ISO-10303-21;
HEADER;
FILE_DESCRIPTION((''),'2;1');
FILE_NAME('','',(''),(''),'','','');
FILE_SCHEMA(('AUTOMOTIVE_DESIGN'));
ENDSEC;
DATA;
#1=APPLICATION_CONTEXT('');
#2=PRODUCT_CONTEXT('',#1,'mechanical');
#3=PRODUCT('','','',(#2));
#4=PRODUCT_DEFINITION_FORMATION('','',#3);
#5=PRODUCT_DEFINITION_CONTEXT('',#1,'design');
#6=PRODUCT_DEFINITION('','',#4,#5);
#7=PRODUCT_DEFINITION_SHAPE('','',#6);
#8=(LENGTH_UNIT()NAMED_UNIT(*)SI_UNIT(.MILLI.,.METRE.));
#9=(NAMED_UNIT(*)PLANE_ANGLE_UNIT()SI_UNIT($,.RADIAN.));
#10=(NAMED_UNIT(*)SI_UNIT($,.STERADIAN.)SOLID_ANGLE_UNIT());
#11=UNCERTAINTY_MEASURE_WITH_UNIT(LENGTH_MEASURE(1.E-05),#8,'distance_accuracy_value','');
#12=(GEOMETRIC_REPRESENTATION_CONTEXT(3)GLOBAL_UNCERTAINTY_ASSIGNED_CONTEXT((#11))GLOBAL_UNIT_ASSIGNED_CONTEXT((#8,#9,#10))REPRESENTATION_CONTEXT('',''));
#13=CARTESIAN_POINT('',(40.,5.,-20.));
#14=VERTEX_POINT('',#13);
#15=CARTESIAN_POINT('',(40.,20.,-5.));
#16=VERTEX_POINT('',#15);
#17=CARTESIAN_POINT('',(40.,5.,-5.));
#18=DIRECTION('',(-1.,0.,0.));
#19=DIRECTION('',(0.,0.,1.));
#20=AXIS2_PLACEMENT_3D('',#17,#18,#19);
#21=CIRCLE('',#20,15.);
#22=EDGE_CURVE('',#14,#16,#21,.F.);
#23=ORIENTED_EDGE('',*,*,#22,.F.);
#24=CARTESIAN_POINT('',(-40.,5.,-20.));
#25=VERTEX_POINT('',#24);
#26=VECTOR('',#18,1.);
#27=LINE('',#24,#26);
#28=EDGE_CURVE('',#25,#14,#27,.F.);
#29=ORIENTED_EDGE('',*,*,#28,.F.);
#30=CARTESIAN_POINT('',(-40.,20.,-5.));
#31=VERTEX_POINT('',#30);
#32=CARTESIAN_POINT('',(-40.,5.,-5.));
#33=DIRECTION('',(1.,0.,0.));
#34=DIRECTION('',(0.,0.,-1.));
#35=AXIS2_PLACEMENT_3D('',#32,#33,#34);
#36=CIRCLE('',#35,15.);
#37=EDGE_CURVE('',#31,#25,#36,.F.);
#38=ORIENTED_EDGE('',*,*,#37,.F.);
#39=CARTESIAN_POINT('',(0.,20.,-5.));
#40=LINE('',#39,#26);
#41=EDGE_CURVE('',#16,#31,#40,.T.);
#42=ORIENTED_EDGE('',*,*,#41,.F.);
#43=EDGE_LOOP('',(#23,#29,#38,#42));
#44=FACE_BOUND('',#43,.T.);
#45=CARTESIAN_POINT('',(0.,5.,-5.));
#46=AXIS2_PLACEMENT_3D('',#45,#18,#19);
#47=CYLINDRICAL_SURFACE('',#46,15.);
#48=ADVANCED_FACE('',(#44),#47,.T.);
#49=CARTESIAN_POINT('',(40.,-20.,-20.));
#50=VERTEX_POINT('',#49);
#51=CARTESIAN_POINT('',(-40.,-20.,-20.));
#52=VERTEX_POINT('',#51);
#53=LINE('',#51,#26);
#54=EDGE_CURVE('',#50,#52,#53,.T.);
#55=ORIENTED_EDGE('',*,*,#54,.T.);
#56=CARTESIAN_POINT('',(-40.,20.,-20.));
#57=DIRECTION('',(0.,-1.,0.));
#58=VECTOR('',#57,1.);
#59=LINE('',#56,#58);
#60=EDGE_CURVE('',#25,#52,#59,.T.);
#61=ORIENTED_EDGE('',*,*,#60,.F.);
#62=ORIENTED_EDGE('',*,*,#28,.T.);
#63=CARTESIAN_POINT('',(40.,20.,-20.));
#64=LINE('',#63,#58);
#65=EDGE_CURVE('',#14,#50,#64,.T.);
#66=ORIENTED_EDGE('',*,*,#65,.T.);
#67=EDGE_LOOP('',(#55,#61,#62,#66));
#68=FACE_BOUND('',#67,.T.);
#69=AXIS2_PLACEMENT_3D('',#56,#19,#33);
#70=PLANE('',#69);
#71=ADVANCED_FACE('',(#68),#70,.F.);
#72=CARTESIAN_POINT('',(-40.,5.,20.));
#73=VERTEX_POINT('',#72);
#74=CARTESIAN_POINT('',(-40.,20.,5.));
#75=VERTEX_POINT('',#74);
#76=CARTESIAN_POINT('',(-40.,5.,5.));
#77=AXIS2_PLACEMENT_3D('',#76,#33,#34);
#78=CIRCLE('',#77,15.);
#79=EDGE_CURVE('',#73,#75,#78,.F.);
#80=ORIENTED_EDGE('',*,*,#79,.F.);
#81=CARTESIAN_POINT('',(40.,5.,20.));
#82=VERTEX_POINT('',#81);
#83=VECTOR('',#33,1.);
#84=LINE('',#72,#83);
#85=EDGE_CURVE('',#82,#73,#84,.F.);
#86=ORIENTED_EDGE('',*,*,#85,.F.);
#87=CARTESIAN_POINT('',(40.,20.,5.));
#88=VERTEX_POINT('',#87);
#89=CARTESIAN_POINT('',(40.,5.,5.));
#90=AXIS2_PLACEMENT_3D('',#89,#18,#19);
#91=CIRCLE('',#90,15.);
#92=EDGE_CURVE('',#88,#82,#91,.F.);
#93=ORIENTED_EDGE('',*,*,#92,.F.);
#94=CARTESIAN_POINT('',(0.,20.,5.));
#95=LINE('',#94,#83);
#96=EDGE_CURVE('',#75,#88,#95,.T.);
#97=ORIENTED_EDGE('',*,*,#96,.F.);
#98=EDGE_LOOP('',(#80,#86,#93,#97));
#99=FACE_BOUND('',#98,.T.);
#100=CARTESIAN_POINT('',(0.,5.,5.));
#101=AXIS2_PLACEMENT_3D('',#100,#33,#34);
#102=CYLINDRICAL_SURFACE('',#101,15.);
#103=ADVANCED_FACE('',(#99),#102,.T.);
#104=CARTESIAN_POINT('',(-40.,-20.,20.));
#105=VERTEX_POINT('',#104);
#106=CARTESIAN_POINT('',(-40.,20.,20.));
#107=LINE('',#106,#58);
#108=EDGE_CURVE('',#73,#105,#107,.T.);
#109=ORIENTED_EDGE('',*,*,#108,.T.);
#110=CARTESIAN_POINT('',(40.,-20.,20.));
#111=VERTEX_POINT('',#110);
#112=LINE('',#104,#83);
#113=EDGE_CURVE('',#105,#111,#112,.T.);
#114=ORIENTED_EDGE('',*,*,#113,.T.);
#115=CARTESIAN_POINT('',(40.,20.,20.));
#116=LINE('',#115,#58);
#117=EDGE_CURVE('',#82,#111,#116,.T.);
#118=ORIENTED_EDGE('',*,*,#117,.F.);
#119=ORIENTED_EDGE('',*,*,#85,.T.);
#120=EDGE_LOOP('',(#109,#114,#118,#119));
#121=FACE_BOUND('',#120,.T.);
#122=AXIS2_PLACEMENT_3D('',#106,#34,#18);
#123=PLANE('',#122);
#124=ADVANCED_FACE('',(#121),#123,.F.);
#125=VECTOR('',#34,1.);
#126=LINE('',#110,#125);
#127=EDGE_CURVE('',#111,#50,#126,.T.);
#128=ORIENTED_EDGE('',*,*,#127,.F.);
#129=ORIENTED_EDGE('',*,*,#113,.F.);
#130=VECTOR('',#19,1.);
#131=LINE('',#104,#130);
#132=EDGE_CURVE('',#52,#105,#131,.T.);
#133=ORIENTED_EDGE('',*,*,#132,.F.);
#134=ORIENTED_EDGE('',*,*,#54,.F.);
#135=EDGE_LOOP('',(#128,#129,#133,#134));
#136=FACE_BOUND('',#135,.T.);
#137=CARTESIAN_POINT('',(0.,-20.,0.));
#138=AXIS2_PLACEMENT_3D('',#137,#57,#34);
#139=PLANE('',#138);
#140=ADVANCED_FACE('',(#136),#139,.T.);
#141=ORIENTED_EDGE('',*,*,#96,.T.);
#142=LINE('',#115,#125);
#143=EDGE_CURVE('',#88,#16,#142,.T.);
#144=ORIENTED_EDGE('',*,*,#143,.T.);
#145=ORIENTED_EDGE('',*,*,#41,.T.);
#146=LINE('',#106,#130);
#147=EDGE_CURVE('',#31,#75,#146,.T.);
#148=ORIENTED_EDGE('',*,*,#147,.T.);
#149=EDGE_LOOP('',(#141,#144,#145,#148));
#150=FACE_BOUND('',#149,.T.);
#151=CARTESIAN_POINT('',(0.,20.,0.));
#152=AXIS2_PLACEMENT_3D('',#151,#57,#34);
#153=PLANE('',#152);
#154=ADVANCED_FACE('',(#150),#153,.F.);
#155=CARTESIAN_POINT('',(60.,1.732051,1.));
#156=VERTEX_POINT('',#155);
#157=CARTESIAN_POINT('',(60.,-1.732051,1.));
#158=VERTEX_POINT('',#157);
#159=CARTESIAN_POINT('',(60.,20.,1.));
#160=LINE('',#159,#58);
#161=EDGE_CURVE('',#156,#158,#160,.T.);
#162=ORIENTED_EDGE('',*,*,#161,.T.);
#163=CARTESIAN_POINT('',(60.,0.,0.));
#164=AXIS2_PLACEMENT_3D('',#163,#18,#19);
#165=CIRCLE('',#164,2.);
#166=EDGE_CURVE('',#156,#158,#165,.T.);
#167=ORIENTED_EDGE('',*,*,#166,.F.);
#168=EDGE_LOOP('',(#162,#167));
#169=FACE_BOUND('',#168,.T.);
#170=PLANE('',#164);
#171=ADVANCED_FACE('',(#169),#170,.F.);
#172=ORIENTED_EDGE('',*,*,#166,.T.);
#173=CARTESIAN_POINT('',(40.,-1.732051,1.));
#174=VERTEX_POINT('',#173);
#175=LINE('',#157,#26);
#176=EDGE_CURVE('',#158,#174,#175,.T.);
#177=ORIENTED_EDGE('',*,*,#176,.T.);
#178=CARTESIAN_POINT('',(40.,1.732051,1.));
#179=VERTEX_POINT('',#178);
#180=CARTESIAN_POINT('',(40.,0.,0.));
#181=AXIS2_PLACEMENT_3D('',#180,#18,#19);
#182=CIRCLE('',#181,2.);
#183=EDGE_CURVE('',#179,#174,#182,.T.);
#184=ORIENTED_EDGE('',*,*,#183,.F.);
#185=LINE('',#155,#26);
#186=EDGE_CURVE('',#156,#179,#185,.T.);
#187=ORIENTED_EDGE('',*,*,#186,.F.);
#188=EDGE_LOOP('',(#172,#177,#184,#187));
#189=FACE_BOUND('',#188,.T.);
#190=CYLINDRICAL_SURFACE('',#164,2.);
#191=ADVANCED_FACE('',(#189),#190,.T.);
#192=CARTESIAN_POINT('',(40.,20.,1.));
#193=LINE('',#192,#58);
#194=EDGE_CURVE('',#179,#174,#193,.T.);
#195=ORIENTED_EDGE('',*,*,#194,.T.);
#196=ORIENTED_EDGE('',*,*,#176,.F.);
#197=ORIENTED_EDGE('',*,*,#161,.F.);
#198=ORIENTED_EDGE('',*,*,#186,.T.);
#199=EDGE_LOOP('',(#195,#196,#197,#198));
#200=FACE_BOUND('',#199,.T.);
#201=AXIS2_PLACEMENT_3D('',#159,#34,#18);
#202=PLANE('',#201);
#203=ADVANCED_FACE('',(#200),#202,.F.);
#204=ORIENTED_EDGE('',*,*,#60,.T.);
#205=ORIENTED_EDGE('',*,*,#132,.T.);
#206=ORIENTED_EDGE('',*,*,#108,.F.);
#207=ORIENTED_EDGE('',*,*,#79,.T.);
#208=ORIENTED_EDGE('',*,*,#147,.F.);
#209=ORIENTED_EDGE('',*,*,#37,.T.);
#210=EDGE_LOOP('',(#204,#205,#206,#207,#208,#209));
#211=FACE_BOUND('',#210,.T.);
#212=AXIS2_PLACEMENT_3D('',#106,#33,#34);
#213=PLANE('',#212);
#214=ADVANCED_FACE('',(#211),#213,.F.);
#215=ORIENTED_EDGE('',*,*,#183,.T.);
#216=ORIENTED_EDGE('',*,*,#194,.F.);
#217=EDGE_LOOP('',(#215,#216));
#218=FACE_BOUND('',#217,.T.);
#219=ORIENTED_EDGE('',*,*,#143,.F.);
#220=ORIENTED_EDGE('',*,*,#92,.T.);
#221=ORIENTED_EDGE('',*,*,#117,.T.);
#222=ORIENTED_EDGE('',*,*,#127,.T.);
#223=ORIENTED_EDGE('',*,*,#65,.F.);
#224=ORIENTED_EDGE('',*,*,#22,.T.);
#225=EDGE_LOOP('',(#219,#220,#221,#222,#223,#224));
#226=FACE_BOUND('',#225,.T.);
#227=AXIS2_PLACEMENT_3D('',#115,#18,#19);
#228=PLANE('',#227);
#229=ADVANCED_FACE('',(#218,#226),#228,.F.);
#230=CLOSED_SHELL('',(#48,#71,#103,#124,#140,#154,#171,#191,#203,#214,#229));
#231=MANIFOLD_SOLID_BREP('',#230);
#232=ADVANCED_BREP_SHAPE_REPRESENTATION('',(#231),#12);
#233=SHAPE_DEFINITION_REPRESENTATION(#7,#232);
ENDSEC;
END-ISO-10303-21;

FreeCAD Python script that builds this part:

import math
import FreeCAD as App
import Part
import Sketcher
Q = App.Units.Quantity


def edges_at(feature, points):
    """Names of the edges that pass closest to the given points."""
    edges = feature.Shape.Edges
    near = lambda p: min(range(len(edges)), key=lambda i: edges[i].distToShape(Part.Vertex(*p))[0])
    return sorted({f"Edge{near(p) + 1}" for p in points})

doc = App.newDocument("Part")
body = doc.addObject("PartDesign::Body", "Body")

# Sketch on XZ plane
sketch1 = body.newObject("Sketcher::SketchObject", "Sketch")
sketch1.AttachmentSupport = (doc.getObject("XZ_Plane"), [""])
sketch1.MapMode = "FlatFace"
sketch1.addGeometry(Part.LineSegment(App.Vector(-40, -20, 0), App.Vector(-40, 20, 0)), False)
sketch1.addGeometry(Part.LineSegment(App.Vector(-40, 20, 0), App.Vector(40, 20, 0)), False)
sketch1.addGeometry(Part.LineSegment(App.Vector(40, 20, 0), App.Vector(40, -20, 0)), False)
sketch1.addGeometry(Part.LineSegment(App.Vector(40, -20, 0), App.Vector(-40, -20, 0)), False)
sketch1.addConstraint(Sketcher.Constraint("Coincident", 0, 2, 1, 1))
sketch1.addConstraint(Sketcher.Constraint("Coincident", 1, 2, 2, 1))
sketch1.addConstraint(Sketcher.Constraint("Coincident", 2, 2, 3, 1))
sketch1.addConstraint(Sketcher.Constraint("Coincident", 3, 2, 0, 1))
sketch1.addConstraint(Sketcher.Constraint("Vertical", 0))
sketch1.addConstraint(Sketcher.Constraint("Horizontal", 1))
sketch1.addConstraint(Sketcher.Constraint("Vertical", 2))
sketch1.addConstraint(Sketcher.Constraint("Horizontal", 3))
sketch1.addConstraint(Sketcher.Constraint("Symmetric", 0, 2, 2, 2, -1, 1))
sketch1.addConstraint(Sketcher.Constraint("DistanceX", 1, 1, 1, 2, Q("80 mm")))
sketch1.addConstraint(Sketcher.Constraint("DistanceY", 0, 1, 0, 2, Q("40 mm")))
pad1 = body.newObject("PartDesign::Pad", "Pad")
pad1.Profile = sketch1
pad1.Length = 40
pad1.Midplane = True

# Sketch on YZ plane
sketch2 = body.newObject("Sketcher::SketchObject", "Sketch001")
sketch2.AttachmentSupport = (doc.getObject("YZ_Plane"), [""])
sketch2.MapMode = "FlatFace"
sketch2.AttachmentOffset = App.Placement(App.Vector(0, 0, 40), App.Rotation())
sketch2.addGeometry(Part.ArcOfCircle(Part.Circle(App.Vector(0, 0, 0), App.Vector(0, 0, 1), 2), math.radians(-90), math.radians(30)), False)
sketch2.addGeometry(Part.LineSegment(App.Vector(1.7, 1, 0), App.Vector(-1.7, 1, 0)), False)
sketch2.addGeometry(Part.ArcOfCircle(Part.Circle(App.Vector(0, 0, 0), App.Vector(0, 0, 1), 2), math.radians(150), math.radians(270)), False)
sketch2.addConstraint(Sketcher.Constraint("Coincident", 0, 2, 1, 1))
sketch2.addConstraint(Sketcher.Constraint("Coincident", 1, 2, 2, 1))
sketch2.addConstraint(Sketcher.Constraint("Tangent", 2, 2, 0, 1))
sketch2.addConstraint(Sketcher.Constraint("Horizontal", 1))
sketch2.addConstraint(Sketcher.Constraint("Coincident", 0, 3, -1, 1))
sketch2.addConstraint(Sketcher.Constraint("Equal", 0, 2))
sketch2.addConstraint(Sketcher.Constraint("PointOnObject", 2, 2, -2))
sketch2.addConstraint(Sketcher.Constraint("Radius", 0, Q("2 mm")))
sketch2.addConstraint(Sketcher.Constraint("DistanceY", -1, 1, 0, 2, Q("1 mm")))
pad2 = body.newObject("PartDesign::Pad", "Pad001")
pad2.Profile = sketch2
pad2.Length = 20
doc.recompute()

fillet = body.newObject("PartDesign::Fillet", "Fillet")
fillet.Base = (pad2, edges_at(pad2, [(0, 20, 20), (0, 20, -20)]))
fillet.Radius = 15

doc.recompute()
